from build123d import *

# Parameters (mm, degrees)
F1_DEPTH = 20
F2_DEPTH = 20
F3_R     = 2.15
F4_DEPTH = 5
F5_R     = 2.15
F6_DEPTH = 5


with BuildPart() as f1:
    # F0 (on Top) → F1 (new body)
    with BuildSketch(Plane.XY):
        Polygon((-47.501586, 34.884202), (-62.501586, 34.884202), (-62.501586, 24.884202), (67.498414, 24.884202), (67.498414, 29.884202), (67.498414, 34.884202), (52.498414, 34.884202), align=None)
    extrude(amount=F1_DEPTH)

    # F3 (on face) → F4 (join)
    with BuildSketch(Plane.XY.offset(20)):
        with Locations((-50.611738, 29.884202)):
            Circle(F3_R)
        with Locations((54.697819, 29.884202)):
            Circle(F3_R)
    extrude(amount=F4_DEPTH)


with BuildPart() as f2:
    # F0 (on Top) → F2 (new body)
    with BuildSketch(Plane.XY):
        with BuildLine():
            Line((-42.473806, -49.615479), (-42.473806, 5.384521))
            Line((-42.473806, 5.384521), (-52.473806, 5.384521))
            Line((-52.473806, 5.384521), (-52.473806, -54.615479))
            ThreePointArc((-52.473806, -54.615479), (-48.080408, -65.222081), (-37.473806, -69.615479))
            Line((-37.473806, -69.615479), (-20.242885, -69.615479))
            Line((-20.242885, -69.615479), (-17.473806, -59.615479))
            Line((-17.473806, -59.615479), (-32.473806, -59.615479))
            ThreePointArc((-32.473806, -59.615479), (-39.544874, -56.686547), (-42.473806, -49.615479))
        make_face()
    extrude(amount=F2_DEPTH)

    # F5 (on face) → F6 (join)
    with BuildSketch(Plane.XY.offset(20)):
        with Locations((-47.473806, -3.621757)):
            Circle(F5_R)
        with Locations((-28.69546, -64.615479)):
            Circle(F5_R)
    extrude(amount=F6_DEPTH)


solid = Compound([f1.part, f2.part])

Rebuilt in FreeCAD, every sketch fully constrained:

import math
import FreeCAD as App
import Part
import Sketcher

V = App.Vector
Q = App.Units.Quantity

doc = App.newDocument("Part")
body = doc.addObject("PartDesign::Body", "Body")

# Sketch on XY plane
sketch1 = doc.addObject("Sketcher::SketchObject", "Sketch")
body.addObject(sketch1)
sketch1.AttachmentSupport = (doc.XY_Plane, [""])
sketch1.MapMode = "FlatFace"
sketch1.addGeometry(Part.LineSegment(V(-63, 35, 0), V(-63, 25, 0)), False)
sketch1.addGeometry(Part.LineSegment(V(-63, 25, 0), V(67, 25, 0)), False)
sketch1.addGeometry(Part.LineSegment(V(67, 25, 0), V(67, 35, 0)), False)
sketch1.addGeometry(Part.LineSegment(V(67, 35, 0), V(-63, 35, 0)), False)
sketch1.addConstraint(Sketcher.Constraint("Coincident", 0, 2, 1, 1))
sketch1.addConstraint(Sketcher.Constraint("Coincident", 1, 2, 2, 1))
sketch1.addConstraint(Sketcher.Constraint("Coincident", 2, 2, 3, 1))
sketch1.addConstraint(Sketcher.Constraint("Coincident", 3, 2, 0, 1))
sketch1.addConstraint(Sketcher.Constraint("Vertical", 0))
sketch1.addConstraint(Sketcher.Constraint("Horizontal", 1))
sketch1.addConstraint(Sketcher.Constraint("Vertical", 2))
sketch1.addConstraint(Sketcher.Constraint("Horizontal", 3))
sketch1.addConstraint(Sketcher.Constraint("DistanceX", 1, 1, 1, 2, Q("130 mm")))
sketch1.addConstraint(Sketcher.Constraint("DistanceY", 0, 2, 0, 1, Q("10 mm")))
sketch1.addConstraint(Sketcher.Constraint("DistanceY", -1, 1, 0, 2, Q("24.884202 mm")))
sketch1.addConstraint(Sketcher.Constraint("DistanceX", 0, 2, -1, 1, Q("62.501586 mm")))
pad1 = doc.addObject("PartDesign::Pad", "Pad")
body.addObject(pad1)
pad1.Profile = sketch1
pad1.Length = 20

# Sketch on XY plane
sketch2 = doc.addObject("Sketcher::SketchObject", "Sketch001")
body.addObject(sketch2)
sketch2.AttachmentSupport = (doc.XY_Plane, [""])
sketch2.MapMode = "FlatFace"
sketch2.AttachmentOffset = App.Placement(V(0, 0, 20), App.Rotation())
sketch2.addGeometry(Part.Circle(V(-50.6, 29.9, 0), V(0, 0, 1), 2.1), False)
sketch2.addGeometry(Part.Circle(V(54.7, 29.9, 0), V(0, 0, 1), 2.1), False)
sketch2.addConstraint(Sketcher.Constraint("Equal", 0, 1))
sketch2.addConstraint(Sketcher.Constraint("Horizontal", 0, 3, 1, 3))
sketch2.addConstraint(Sketcher.Constraint("Diameter", 0, Q("4.3 mm")))
sketch2.addConstraint(Sketcher.Constraint("DistanceY", -1, 1, 0, 3, Q("29.884202 mm")))
sketch2.addConstraint(Sketcher.Constraint("DistanceX", 0, 3, -1, 1, Q("50.611738 mm")))
sketch2.addConstraint(Sketcher.Constraint("DistanceX", -1, 1, 1, 3, Q("54.697819 mm")))
pad2 = doc.addObject("PartDesign::Pad", "Pad001")
body.addObject(pad2)
pad2.Profile = sketch2
pad2.Length = 5
body2 = doc.addObject("PartDesign::Body", "Body001")

# Sketch on XY plane
sketch3 = doc.addObject("Sketcher::SketchObject", "Sketch002")
body2.addObject(sketch3)
sketch3.AttachmentSupport = (doc.getObject("XY_Plane001"), [""])
sketch3.MapMode = "FlatFace"
sketch3.addGeometry(Part.LineSegment(V(-42, -50, 0), V(-42, 5, 0)), False)
sketch3.addGeometry(Part.LineSegment(V(-42, 5, 0), V(-52, 5, 0)), False)
sketch3.addGeometry(Part.LineSegment(V(-52, 5, 0), V(-52, -55, 0)), False)
sketch3.addGeometry(Part.ArcOfCircle(Part.Circle(V(-37, -55, 0), V(0, 0, 1), 15), math.radians(180), math.radians(270)), False)
sketch3.addGeometry(Part.LineSegment(V(-37, -70, 0), V(-20, -70, 0)), False)
sketch3.addGeometry(Part.LineSegment(V(-20, -70, 0), V(-17, -60, 0)), False)
sketch3.addGeometry(Part.LineSegment(V(-17, -60, 0), V(-32, -60, 0)), False)
sketch3.addGeometry(Part.ArcOfCircle(Part.Circle(V(-32, -50, 0), V(0, 0, 1), 10), math.radians(180), math.radians(270)), False)
sketch3.addConstraint(Sketcher.Constraint("Coincident", 0, 2, 1, 1))
sketch3.addConstraint(Sketcher.Constraint("Coincident", 1, 2, 2, 1))
sketch3.addConstraint(Sketcher.Constraint("Tangent", 2, 2, 3, 1))
sketch3.addConstraint(Sketcher.Constraint("Tangent", 3, 2, 4, 1))
sketch3.addConstraint(Sketcher.Constraint("Coincident", 4, 2, 5, 1))
sketch3.addConstraint(Sketcher.Constraint("Coincident", 5, 2, 6, 1))
sketch3.addConstraint(Sketcher.Constraint("Tangent", 6, 2, 7, 2))
sketch3.addConstraint(Sketcher.Constraint("Tangent", 7, 1, 0, 1))
sketch3.addConstraint(Sketcher.Constraint("Vertical", 0))
sketch3.addConstraint(Sketcher.Constraint("Horizontal", 1))
sketch3.addConstraint(Sketcher.Constraint("Vertical", 2))
sketch3.addConstraint(Sketcher.Constraint("Horizontal", 4))
sketch3.addConstraint(Sketcher.Constraint("Horizontal", 6))
sketch3.addConstraint(Sketcher.Constraint("Radius", 3, Q("14.999999 mm")))
sketch3.addConstraint(Sketcher.Constraint("Radius", 7, Q("9.999999 mm")))
sketch3.addConstraint(Sketcher.Constraint("DistanceX", 1, 2, 1, 1, Q("10 mm")))
sketch3.addConstraint(Sketcher.Constraint("DistanceX", 6, 2, 6, 1, Q("15 mm")))
sketch3.addConstraint(Sketcher.Constraint("DistanceY", 0, 1, 0, 2, Q("55 mm")))
sketch3.addConstraint(Sketcher.Constraint("DistanceY", 2, 2, 2, 1, Q("60 mm")))
sketch3.addConstraint(Sketcher.Constraint("DistanceX", 4, 1, 4, 2, Q("17.230921 mm")))
sketch3.addConstraint(Sketcher.Constraint("DistanceY", 3, 3, -1, 1, Q("54.61548 mm")))
sketch3.addConstraint(Sketcher.Constraint("DistanceX", 3, 3, -1, 1, Q("37.473807 mm")))
pad3 = doc.addObject("PartDesign::Pad", "Pad002")
body2.addObject(pad3)
pad3.Profile = sketch3
pad3.Length = 20

# Sketch on XY plane
sketch4 = doc.addObject("Sketcher::SketchObject", "Sketch003")
body2.addObject(sketch4)
sketch4.AttachmentSupport = (doc.getObject("XY_Plane001"), [""])
sketch4.MapMode = "FlatFace"
sketch4.AttachmentOffset = App.Placement(V(0, 0, 20), App.Rotation())
sketch4.addGeometry(Part.Circle(V(-47.5, -3.6, 0), V(0, 0, 1), 2.1), False)
sketch4.addGeometry(Part.Circle(V(-28.7, -64.6, 0), V(0, 0, 1), 2.1), False)
sketch4.addConstraint(Sketcher.Constraint("Equal", 0, 1))
sketch4.addConstraint(Sketcher.Constraint("Diameter", 0, Q("4.3 mm")))
sketch4.addConstraint(Sketcher.Constraint("DistanceX", 1, 3, -1, 1, Q("28.69546 mm")))
sketch4.addConstraint(Sketcher.Constraint("DistanceY", 1, 3, -1, 1, Q("64.615479 mm")))
sketch4.addConstraint(Sketcher.Constraint("DistanceY", 1, 3, 0, 3, Q("60.993722 mm")))
sketch4.addConstraint(Sketcher.Constraint("DistanceX", 0, 3, -1, 1, Q("47.473806 mm")))
pad4 = doc.addObject("PartDesign::Pad", "Pad003")
body2.addObject(pad4)
pad4.Profile = sketch4
pad4.Length = 5

doc.recompute()
